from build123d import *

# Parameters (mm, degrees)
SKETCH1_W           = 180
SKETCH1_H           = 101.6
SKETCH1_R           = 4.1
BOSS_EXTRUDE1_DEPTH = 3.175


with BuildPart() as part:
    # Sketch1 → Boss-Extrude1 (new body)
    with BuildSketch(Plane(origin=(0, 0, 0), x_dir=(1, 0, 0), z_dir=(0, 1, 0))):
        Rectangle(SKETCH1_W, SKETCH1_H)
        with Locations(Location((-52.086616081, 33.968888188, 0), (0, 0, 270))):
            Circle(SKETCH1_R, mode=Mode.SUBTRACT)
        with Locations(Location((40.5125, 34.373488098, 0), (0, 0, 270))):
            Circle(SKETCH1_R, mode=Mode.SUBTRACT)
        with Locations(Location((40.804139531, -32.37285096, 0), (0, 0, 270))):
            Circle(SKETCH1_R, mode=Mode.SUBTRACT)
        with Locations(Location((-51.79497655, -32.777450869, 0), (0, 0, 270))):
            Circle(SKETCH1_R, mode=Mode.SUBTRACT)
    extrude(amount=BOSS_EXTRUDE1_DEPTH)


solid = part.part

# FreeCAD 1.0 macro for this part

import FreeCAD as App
import Part
import Sketcher
Q = App.Units.Quantity

doc = App.newDocument("Part")
body = doc.addObject("PartDesign::Body", "Body")

sketch1 = body.newObject("Sketcher::SketchObject", "Sketch")
sketch1.AttachmentSupport = (doc.getObject("XZ_Plane"), [""])
sketch1.MapMode = "FlatFace"
sketch1.addGeometry([
    Part.LineSegment(App.Vector(-90, -50.8, 0), App.Vector(-90, 50.8, 0)),
    Part.LineSegment(App.Vector(-90, 50.8, 0), App.Vector(90, 50.8, 0)),
    Part.LineSegment(App.Vector(90, 50.8, 0), App.Vector(90, -50.8, 0)),
    Part.LineSegment(App.Vector(90, -50.8, 0), App.Vector(-90, -50.8, 0)),
    Part.Circle(App.Vector(-51.8, 32.8, 0), App.Vector(0, 0, 1), 4.1),
    Part.Circle(App.Vector(40.8, 32.4, 0), App.Vector(0, 0, 1), 4.1),
    Part.Circle(App.Vector(-52.1, -34, 0), App.Vector(0, 0, 1), 4.1),
    Part.Circle(App.Vector(40.5, -34.4, 0), App.Vector(0, 0, 1), 4.1),
], False)
sketch1.addConstraint([
    Sketcher.Constraint("Coincident", 0, 2, 1, 1),
    Sketcher.Constraint("Coincident", 1, 2, 2, 1),
    Sketcher.Constraint("Coincident", 2, 2, 3, 1),
    Sketcher.Constraint("Coincident", 3, 2, 0, 1),
    Sketcher.Constraint("Vertical", 0),
    Sketcher.Constraint("Horizontal", 1),
    Sketcher.Constraint("Vertical", 2),
    Sketcher.Constraint("Horizontal", 3),
    Sketcher.Constraint("Equal", 4, 5),
    Sketcher.Constraint("Equal", 5, 6),
    Sketcher.Constraint("Equal", 6, 7),
    Sketcher.Constraint("Symmetric", 0, 2, 2, 2, -1, 1),
    Sketcher.Constraint("Diameter", 4, Q("8.2 mm")),
    Sketcher.Constraint("DistanceX", 1, 1, 1, 2, Q("180 mm")),
    Sketcher.Constraint("DistanceY", 0, 1, 0, 2, Q("101.6 mm")),
    Sketcher.Constraint("DistanceX", -1, 1, 7, 3, Q("40.5125 mm")),
    Sketcher.Constraint("DistanceY", 5, 3, 4, 3, Q("0.4046 mm")),
    Sketcher.Constraint("DistanceY", 7, 3, 6, 3, Q("0.4046 mm")),
    Sketcher.Constraint("DistanceY", -1, 1, 4, 3, Q("32.777451 mm")),
    Sketcher.Constraint("DistanceX", -1, 1, 5, 3, Q("40.80414 mm")),
    Sketcher.Constraint("DistanceY", 6, 3, -1, 1, Q("33.968888 mm")),
    Sketcher.Constraint("DistanceX", 6, 3, 4, 3, Q("0.29164 mm")),
    Sketcher.Constraint("DistanceX", 4, 3, -1, 1, Q("51.794977 mm")),
])
pad1 = body.newObject("PartDesign::Pad", "Pad")
pad1.Profile = sketch1
pad1.Length = 3.175
pad1.Reversed = True

doc.recompute()
